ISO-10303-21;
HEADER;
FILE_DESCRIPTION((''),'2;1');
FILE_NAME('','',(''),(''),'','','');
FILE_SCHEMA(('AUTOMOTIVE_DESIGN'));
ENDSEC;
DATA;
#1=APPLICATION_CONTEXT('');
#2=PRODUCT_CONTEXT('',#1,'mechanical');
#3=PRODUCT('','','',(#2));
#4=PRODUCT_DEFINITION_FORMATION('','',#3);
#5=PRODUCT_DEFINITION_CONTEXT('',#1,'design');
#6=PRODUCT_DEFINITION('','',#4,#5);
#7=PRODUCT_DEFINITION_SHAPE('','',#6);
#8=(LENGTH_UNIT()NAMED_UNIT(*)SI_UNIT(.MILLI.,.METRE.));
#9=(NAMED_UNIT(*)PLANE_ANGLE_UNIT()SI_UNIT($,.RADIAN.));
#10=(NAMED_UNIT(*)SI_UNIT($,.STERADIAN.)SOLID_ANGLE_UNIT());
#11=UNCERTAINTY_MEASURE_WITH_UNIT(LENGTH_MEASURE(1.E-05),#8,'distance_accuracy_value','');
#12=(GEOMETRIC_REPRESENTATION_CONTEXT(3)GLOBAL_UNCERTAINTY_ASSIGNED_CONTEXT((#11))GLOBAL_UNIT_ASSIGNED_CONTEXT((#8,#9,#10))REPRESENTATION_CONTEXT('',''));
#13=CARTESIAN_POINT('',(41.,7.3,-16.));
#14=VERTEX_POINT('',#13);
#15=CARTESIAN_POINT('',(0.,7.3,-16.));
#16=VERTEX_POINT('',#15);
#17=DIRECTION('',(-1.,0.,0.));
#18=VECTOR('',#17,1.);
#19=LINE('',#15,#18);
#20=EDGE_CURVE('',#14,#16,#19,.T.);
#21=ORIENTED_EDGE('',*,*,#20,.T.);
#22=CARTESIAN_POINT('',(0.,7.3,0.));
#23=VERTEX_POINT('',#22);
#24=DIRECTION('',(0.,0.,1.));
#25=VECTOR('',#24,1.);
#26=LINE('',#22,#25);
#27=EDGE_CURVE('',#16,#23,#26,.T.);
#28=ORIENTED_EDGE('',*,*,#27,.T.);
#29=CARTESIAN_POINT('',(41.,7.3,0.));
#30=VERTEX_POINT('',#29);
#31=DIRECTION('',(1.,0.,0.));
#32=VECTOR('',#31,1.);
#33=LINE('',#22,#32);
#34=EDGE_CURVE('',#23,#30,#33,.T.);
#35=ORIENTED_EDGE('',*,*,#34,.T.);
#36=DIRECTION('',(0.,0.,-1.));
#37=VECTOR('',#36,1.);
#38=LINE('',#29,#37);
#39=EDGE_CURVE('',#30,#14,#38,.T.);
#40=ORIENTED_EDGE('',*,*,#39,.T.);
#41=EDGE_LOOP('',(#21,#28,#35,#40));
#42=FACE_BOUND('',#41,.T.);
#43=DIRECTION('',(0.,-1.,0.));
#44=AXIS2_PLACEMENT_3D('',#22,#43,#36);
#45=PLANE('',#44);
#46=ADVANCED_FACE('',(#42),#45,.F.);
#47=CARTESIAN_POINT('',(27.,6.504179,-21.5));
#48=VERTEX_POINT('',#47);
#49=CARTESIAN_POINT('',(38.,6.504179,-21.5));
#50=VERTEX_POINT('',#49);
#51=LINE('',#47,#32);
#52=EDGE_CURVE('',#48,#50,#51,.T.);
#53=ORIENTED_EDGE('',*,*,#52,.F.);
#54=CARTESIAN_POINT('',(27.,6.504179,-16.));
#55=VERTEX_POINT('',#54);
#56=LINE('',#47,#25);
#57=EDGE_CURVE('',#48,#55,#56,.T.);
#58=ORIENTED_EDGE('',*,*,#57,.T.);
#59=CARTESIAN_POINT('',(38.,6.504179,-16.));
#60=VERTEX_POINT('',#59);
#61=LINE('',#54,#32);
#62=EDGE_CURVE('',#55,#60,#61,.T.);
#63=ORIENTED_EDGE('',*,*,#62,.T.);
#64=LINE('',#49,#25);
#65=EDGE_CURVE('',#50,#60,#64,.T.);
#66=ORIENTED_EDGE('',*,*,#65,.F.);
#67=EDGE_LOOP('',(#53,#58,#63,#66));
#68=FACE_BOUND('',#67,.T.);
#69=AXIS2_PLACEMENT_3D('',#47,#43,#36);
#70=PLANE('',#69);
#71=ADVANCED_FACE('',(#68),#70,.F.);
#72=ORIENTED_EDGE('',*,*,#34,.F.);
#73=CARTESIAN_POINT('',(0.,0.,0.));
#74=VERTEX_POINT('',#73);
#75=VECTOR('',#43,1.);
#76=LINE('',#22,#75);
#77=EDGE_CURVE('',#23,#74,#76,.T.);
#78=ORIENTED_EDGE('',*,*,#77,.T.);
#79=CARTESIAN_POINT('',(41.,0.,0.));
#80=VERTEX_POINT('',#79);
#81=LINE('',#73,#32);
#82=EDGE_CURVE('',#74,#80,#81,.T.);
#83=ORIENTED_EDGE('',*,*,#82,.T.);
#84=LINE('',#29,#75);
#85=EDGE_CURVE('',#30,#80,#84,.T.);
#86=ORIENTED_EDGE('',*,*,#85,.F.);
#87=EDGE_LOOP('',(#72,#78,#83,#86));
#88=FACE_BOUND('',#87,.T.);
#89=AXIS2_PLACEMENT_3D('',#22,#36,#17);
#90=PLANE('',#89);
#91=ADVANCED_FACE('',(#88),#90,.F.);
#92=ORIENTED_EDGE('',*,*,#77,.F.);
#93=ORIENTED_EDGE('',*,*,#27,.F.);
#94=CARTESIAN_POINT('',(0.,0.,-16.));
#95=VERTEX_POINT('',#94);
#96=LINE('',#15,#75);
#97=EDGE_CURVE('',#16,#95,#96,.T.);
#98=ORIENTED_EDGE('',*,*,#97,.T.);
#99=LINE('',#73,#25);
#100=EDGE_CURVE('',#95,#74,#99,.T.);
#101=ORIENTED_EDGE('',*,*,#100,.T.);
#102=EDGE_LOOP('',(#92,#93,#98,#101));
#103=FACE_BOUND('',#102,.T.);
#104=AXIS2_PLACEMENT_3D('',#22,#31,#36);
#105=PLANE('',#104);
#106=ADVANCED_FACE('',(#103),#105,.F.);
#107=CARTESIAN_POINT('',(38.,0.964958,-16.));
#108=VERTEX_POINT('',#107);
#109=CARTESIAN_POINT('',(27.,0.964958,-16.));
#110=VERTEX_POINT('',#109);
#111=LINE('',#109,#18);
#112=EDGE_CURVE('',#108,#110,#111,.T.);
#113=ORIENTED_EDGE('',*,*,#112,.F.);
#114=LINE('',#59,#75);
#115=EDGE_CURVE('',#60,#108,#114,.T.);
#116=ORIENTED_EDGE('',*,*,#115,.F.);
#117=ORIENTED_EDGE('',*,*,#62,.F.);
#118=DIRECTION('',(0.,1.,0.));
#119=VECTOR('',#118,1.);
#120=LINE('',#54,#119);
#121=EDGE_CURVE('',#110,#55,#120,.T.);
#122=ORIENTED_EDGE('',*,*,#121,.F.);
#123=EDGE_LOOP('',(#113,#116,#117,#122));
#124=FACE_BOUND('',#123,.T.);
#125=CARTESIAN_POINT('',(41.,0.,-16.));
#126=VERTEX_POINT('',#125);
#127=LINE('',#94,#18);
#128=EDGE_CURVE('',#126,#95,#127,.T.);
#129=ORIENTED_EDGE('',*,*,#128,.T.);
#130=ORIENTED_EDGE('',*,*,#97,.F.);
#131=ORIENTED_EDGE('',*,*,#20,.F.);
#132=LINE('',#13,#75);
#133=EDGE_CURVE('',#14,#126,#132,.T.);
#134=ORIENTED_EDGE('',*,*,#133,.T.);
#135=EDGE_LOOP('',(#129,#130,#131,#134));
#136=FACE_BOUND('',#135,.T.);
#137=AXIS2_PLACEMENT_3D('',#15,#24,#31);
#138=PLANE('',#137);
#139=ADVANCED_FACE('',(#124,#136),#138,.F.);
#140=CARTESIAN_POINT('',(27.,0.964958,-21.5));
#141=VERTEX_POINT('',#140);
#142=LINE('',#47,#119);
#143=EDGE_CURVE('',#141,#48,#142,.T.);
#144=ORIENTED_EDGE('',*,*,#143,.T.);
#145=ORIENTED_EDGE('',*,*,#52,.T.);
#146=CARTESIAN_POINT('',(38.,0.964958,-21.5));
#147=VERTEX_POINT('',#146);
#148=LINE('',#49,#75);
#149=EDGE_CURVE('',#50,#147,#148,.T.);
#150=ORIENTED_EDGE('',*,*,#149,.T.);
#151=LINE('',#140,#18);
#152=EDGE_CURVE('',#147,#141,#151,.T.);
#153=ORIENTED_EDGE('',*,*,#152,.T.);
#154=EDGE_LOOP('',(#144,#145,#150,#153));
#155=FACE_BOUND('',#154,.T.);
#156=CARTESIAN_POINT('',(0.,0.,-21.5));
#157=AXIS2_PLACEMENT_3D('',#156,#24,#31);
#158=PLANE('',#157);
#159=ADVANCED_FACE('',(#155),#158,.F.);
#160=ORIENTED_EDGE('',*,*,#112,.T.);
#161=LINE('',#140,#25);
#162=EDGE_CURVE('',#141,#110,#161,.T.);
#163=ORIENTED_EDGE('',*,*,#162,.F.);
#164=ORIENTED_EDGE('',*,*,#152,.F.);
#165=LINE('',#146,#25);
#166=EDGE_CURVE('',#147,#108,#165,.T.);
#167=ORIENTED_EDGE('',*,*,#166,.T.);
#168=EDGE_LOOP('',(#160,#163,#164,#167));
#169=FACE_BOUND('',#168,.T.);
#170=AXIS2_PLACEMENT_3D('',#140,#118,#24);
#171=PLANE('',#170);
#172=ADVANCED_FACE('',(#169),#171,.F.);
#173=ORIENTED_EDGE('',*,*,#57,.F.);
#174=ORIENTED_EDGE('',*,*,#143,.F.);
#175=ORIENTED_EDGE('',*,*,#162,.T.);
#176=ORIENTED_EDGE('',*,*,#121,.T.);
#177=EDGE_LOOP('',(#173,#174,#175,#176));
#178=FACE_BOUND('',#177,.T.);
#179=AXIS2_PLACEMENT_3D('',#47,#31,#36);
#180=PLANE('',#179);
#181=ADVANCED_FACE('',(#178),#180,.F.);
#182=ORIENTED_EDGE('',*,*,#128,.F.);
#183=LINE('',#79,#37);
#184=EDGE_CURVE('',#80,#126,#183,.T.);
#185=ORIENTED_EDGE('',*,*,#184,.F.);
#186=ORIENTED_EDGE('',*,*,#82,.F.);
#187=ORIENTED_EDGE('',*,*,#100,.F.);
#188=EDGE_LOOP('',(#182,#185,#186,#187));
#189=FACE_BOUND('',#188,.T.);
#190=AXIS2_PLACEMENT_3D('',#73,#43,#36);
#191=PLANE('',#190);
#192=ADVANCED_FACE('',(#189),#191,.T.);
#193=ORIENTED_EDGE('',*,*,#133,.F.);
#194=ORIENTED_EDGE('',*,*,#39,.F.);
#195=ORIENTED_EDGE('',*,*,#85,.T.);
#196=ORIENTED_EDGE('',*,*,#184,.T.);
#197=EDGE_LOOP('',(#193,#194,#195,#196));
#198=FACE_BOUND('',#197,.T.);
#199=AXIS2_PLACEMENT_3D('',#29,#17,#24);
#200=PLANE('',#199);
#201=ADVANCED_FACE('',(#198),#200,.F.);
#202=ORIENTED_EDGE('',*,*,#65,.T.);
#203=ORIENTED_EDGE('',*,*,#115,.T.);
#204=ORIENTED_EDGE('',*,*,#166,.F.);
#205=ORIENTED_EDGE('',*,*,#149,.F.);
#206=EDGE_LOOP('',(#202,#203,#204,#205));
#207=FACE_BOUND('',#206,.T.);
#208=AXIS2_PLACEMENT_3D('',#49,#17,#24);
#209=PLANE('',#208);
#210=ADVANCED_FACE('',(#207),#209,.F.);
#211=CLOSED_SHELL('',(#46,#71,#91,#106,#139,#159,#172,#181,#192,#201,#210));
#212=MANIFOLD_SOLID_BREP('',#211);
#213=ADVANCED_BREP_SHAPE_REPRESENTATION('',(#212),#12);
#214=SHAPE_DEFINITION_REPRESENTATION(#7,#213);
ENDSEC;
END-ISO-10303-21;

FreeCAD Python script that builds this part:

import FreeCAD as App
import Part
import Sketcher
from FreeCAD import Vector


def add_polygon(sketch, points):
    """Adds a closed chain of lines whose ends are joined by coincident constraints."""
    first, n = sketch.GeometryCount, len(points)
    for a, b in zip(points, points[1:] + points[:1]):
        sketch.addGeometry(Part.LineSegment(App.Vector(*a, 0), App.Vector(*b, 0)), False)
    for i in range(n):
        sketch.addConstraint(Sketcher.Constraint("Coincident", first + i, 2, first + (i + 1) % n, 1))

doc = App.newDocument("Part")
params = doc.addObject("Spreadsheet::Sheet", "Params")
for row, (alias, value) in enumerate([
    ("sketch1_width", "41 mm"),
    ("sketch1_height", "16 mm"),
    ("pad1_length", "7.3 mm"),
    ("sketch2_width", "11 mm"),
    ("pad2_length", "5.5 mm"),
], start=1):
    params.set(f"A{row}", alias)
    params.set(f"B{row}", "=" + value)
    params.setAlias(f"B{row}", alias)

body = doc.addObject("PartDesign::Body", "Body")

# Sketch on XZ plane
sketch1 = doc.addObject("Sketcher::SketchObject", "Sketch")
body.addObject(sketch1)
sketch1.AttachmentSupport = (doc.XZ_Plane, [""])
sketch1.MapMode = "FlatFace"
add_polygon(sketch1, [(0, -16), (0, 0), (41, 0), (41, -16)])  # lines 0-3
sketch1.addConstraint(Sketcher.Constraint("Vertical", 0))
sketch1.addConstraint(Sketcher.Constraint("Horizontal", 1))
sketch1.addConstraint(Sketcher.Constraint("Vertical", 2))
sketch1.addConstraint(Sketcher.Constraint("Horizontal", 3))
sketch1.addConstraint(Sketcher.Constraint("Coincident", 0, 2, -1, 1))
sketch1.addConstraint(Sketcher.Constraint("DistanceX", 1, 1, 1, 2, 41.0))
sketch1.addConstraint(Sketcher.Constraint("DistanceY", 0, 1, 0, 2, 16.0))
sketch1.setExpression("Constraints[9]", "Params.sketch1_width")
sketch1.setExpression("Constraints[10]", "Params.sketch1_height")
pad1 = doc.addObject("PartDesign::Pad", "Pad")
body.addObject(pad1)
pad1.Profile = sketch1
pad1.setExpression("Length", "Params.pad1_length")
pad1.Reversed = True

# Sketch on XY plane
sketch2 = doc.addObject("Sketcher::SketchObject", "Sketch001")
body.addObject(sketch2)
sketch2.AttachmentSupport = (doc.XY_Plane, [""])
sketch2.MapMode = "FlatFace"
sketch2.AttachmentOffset = App.Placement(Vector(0, 0, -16), App.Rotation())
add_polygon(sketch2, [(38, 7), (38, 1), (27, 1), (27, 7)])  # lines 0-3
sketch2.addConstraint(Sketcher.Constraint("Vertical", 0))
sketch2.addConstraint(Sketcher.Constraint("Horizontal", 1))
sketch2.addConstraint(Sketcher.Constraint("Vertical", 2))
sketch2.addConstraint(Sketcher.Constraint("Horizontal", 3))
sketch2.addConstraint(Sketcher.Constraint("DistanceX", 1, 2, 1, 1, 11.0))
sketch2.addConstraint(Sketcher.Constraint("DistanceX", -1, 1, 0, 2, 38.0))
sketch2.addConstraint(Sketcher.Constraint("DistanceY", 0, 2, 0, 1, 5.539221))
sketch2.addConstraint(Sketcher.Constraint("DistanceY", -1, 1, 2, 2, 6.504179))
sketch2.setExpression("Constraints[8]", "Params.sketch2_width")
pad2 = doc.addObject("PartDesign::Pad", "Pad001")
body.addObject(pad2)
pad2.Profile = sketch2
pad2.setExpression("Length", "Params.pad2_length")
pad2.Reversed = True

doc.recompute()
